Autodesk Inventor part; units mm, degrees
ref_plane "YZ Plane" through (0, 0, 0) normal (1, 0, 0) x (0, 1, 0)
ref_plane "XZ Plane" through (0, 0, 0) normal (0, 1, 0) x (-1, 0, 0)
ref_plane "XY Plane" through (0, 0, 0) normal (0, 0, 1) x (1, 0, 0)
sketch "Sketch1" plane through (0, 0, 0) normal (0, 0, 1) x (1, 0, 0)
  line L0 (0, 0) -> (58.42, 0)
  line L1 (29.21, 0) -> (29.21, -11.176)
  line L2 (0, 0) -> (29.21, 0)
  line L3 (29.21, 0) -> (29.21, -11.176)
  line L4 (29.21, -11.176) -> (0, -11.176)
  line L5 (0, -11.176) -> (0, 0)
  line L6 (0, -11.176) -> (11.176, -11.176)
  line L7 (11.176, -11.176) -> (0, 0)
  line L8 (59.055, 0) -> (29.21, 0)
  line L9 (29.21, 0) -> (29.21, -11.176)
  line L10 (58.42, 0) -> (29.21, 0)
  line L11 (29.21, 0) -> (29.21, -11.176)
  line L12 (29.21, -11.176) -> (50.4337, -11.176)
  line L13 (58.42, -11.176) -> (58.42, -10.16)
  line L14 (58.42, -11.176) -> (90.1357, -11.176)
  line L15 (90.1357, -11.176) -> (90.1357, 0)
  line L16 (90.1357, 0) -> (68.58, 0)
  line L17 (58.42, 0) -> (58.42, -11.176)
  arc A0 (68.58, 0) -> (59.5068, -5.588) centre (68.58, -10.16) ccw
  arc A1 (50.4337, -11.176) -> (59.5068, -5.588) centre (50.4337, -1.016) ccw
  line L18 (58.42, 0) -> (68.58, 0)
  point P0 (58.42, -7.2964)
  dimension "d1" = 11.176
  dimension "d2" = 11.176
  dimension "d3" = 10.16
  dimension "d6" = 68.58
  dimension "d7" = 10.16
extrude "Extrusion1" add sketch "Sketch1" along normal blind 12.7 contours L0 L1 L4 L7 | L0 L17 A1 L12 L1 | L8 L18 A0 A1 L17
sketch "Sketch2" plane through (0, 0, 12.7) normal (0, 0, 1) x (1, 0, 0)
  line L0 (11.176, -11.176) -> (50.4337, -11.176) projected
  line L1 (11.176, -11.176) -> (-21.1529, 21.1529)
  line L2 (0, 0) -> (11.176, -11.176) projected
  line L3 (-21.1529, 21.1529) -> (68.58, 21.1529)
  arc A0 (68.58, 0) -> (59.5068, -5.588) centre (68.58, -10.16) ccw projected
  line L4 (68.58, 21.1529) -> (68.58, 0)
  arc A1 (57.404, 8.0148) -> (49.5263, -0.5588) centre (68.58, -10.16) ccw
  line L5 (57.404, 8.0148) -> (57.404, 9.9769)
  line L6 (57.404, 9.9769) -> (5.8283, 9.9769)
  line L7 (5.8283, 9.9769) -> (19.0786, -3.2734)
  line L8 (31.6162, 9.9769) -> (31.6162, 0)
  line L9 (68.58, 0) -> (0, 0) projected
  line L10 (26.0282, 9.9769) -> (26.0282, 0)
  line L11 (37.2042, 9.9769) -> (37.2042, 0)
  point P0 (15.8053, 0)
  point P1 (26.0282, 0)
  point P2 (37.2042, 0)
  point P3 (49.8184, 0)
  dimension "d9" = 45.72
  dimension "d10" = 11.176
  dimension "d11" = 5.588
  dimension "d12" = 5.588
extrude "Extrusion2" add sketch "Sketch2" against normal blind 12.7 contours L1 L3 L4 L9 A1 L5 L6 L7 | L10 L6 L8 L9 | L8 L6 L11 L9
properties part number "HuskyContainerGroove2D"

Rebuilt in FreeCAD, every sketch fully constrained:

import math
import FreeCAD as App
import Part
import Sketcher
Q = App.Units.Quantity

doc = App.newDocument("Part")
params = doc.addObject("Spreadsheet::Sheet", "Params")
for row, (alias, value) in enumerate([
    ("sketch1_radius", "0.4 in"),
    ("sketch1_width", "2.7 in"),
    ("pad1_length", "0.5 in"),
    ("sketch2_width", "0.44 in"),
    ("sketch2_radius", "0.84 in"),
    ("pad2_length", "0.5 in"),
], start=1):
    params.set(f"A{row}", alias)
    params.set(f"B{row}", "=" + value)
    params.setAlias(f"B{row}", alias)

body = doc.addObject("PartDesign::Body", "Body")

# Sketch on XY plane
sketch1 = body.newObject("Sketcher::SketchObject", "Sketch")
sketch1.AttachmentSupport = (doc.getObject("XY_Plane"), [""])
sketch1.MapMode = "FlatFace"
sketch1.addGeometry([
    Part.LineSegment(App.Vector(0, 0, 0), App.Vector(11.176, -11.176, 0)),  # 0
    Part.LineSegment(App.Vector(11.176, -11.176, 0), App.Vector(50.4337, -11.176, 0)),  # 1
    Part.ArcOfCircle(Part.Circle(App.Vector(50.4337, -1.016, 0), App.Vector(0, 0, 1), 10.16), math.radians(-90), math.radians(-26.743862)),  # 2
    Part.ArcOfCircle(Part.Circle(App.Vector(68.58, -10.16, 0), App.Vector(0, 0, 1), 10.16), math.radians(90), math.radians(153.256392)),  # 3
    Part.LineSegment(App.Vector(68.58, 0, 0), App.Vector(0, 0, 0)),  # 4
], False)
sketch1.addConstraint([
    Sketcher.Constraint("Coincident", 0, 2, 1, 1),
    Sketcher.Constraint("Tangent", 1, 2, 2, 1),
    Sketcher.Constraint("Tangent", 2, 2, 3, 2),
    Sketcher.Constraint("Tangent", 3, 1, 4, 1),
    Sketcher.Constraint("Coincident", 4, 2, 0, 1),
    Sketcher.Constraint("Horizontal", 1),
    Sketcher.Constraint("Horizontal", 4),
    Sketcher.Constraint("Coincident", 4, 2, -1, 1),
    Sketcher.Constraint("Equal", 2, 3),
    Sketcher.Constraint("Radius", 2, Q("0.4 in")),
    Sketcher.Constraint("DistanceX", 4, 2, 4, 1, Q("2.7 in")),
    Sketcher.Constraint("DistanceX", -1, 1, 0, 2, Q("0.44 in")),
    Sketcher.Constraint("DistanceY", 0, 2, -1, 1, Q("0.44 in")),
])
sketch1.setExpression("Constraints[9]", "Params.sketch1_radius")
sketch1.setExpression("Constraints[10]", "Params.sketch1_width")
pad1 = body.newObject("PartDesign::Pad", "Pad")
pad1.Profile = sketch1
pad1.setExpression("Length", "Params.pad1_length")

# Sketch on XY plane
sketch2 = body.newObject("Sketcher::SketchObject", "Sketch001")
sketch2.AttachmentSupport = (doc.getObject("XY_Plane"), [""])
sketch2.MapMode = "FlatFace"
sketch2.AttachmentOffset = App.Placement(App.Vector(0, 0, 0.5 * 25.4), App.Rotation())
sketch2.addGeometry([
    Part.LineSegment(App.Vector(-21.1529, 21.1529, 0), App.Vector(0, 0, 0)),  # 0
    Part.LineSegment(App.Vector(0, 0, 0), App.Vector(15.8052, 0, 0)),  # 1
    Part.LineSegment(App.Vector(15.8052, 0, 0), App.Vector(5.8283, 9.9769, 0)),  # 2
    Part.LineSegment(App.Vector(5.8283, 9.9769, 0), App.Vector(26.0282, 9.9769, 0)),  # 3
    Part.LineSegment(App.Vector(26.0282, 9.9769, 0), App.Vector(26.0282, 0, 0)),  # 4
    Part.LineSegment(App.Vector(26.0282, 0, 0), App.Vector(37.2042, 0, 0)),  # 5
    Part.LineSegment(App.Vector(37.2042, 0, 0), App.Vector(37.2042, 9.9769, 0)),  # 6
    Part.LineSegment(App.Vector(37.2042, 9.9769, 0), App.Vector(57.404, 9.9769, 0)),  # 7
    Part.LineSegment(App.Vector(57.404, 9.9769, 0), App.Vector(57.404, 8.0148, 0)),  # 8
    Part.ArcOfCircle(Part.Circle(App.Vector(68.58, -10.16, 0), App.Vector(0, 0, 1), 21.336034), math.radians(121.58808), math.radians(151.563164)),  # 9
    Part.LineSegment(App.Vector(49.818313, 0, 0), App.Vector(68.58, 0, 0)),  # 10
    Part.LineSegment(App.Vector(68.58, 0, 0), App.Vector(68.58, 21.1529, 0)),  # 11
    Part.LineSegment(App.Vector(68.58, 21.1529, 0), App.Vector(-21.1529, 21.1529, 0)),  # 12
], False)
sketch2.addConstraint([
    Sketcher.Constraint("Coincident", 0, 2, 1, 1),
    Sketcher.Constraint("Coincident", 1, 2, 2, 1),
    Sketcher.Constraint("Coincident", 2, 2, 3, 1),
    Sketcher.Constraint("Coincident", 3, 2, 4, 1),
    Sketcher.Constraint("Coincident", 4, 2, 5, 1),
    Sketcher.Constraint("Coincident", 5, 2, 6, 1),
    Sketcher.Constraint("Coincident", 6, 2, 7, 1),
    Sketcher.Constraint("Coincident", 7, 2, 8, 1),
    Sketcher.Constraint("Coincident", 8, 2, 9, 1),
    Sketcher.Constraint("Coincident", 9, 2, 10, 1),
    Sketcher.Constraint("Coincident", 10, 2, 11, 1),
    Sketcher.Constraint("Coincident", 11, 2, 12, 1),
    Sketcher.Constraint("Coincident", 12, 2, 0, 1),
    Sketcher.Constraint("Horizontal", 1),
    Sketcher.Constraint("Horizontal", 3),
    Sketcher.Constraint("Vertical", 4),
    Sketcher.Constraint("Horizontal", 5),
    Sketcher.Constraint("Vertical", 6),
    Sketcher.Constraint("Horizontal", 7),
    Sketcher.Constraint("Vertical", 8),
    Sketcher.Constraint("Horizontal", 10),
    Sketcher.Constraint("Vertical", 11),
    Sketcher.Constraint("Horizontal", 12),
    Sketcher.Constraint("Coincident", 0, 2, -1, 1),
    Sketcher.Constraint("PointOnObject", 4, 2, -1),
    Sketcher.Constraint("PointOnObject", 9, 2, -1),
    Sketcher.Constraint("Parallel", 0, 2),
    Sketcher.Constraint("Horizontal", 3, 2, 6, 2),
    Sketcher.Constraint("Vertical", 9, 3, 10, 2),
    Sketcher.Constraint("Equal", 3, 7),
    Sketcher.Constraint("DistanceX", 5, 1, 5, 2, Q("0.44 in")),
    Sketcher.Constraint("Radius", 9, Q("0.84 in")),
    Sketcher.Constraint("DistanceX", 7, 2, 9, 3, Q("0.44 in")),
    Sketcher.Constraint("DistanceY", 7, 2, 11, 2, Q("0.44 in")),
    Sketcher.Constraint("Angle", 0, Q("-45 deg")),
    Sketcher.Constraint("DistanceX", -1, 1, 9, 3, Q("2.7 in")),
    Sketcher.Constraint("DistanceY", 9, 3, -1, 1, Q("0.4 in")),
    Sketcher.Constraint("DistanceX", 12, 2, 12, 1, Q("3.5328 in")),
    Sketcher.Constraint("DistanceX", 1, 1, 1, 2, 15.8052),
])
sketch2.setExpression("Constraints[30]", "Params.sketch2_width")
sketch2.setExpression("Constraints[31]", "Params.sketch2_radius")
pad2 = body.newObject("PartDesign::Pad", "Pad001")
pad2.Profile = sketch2
pad2.setExpression("Length", "Params.pad2_length")
pad2.Reversed = True

doc.recompute()
